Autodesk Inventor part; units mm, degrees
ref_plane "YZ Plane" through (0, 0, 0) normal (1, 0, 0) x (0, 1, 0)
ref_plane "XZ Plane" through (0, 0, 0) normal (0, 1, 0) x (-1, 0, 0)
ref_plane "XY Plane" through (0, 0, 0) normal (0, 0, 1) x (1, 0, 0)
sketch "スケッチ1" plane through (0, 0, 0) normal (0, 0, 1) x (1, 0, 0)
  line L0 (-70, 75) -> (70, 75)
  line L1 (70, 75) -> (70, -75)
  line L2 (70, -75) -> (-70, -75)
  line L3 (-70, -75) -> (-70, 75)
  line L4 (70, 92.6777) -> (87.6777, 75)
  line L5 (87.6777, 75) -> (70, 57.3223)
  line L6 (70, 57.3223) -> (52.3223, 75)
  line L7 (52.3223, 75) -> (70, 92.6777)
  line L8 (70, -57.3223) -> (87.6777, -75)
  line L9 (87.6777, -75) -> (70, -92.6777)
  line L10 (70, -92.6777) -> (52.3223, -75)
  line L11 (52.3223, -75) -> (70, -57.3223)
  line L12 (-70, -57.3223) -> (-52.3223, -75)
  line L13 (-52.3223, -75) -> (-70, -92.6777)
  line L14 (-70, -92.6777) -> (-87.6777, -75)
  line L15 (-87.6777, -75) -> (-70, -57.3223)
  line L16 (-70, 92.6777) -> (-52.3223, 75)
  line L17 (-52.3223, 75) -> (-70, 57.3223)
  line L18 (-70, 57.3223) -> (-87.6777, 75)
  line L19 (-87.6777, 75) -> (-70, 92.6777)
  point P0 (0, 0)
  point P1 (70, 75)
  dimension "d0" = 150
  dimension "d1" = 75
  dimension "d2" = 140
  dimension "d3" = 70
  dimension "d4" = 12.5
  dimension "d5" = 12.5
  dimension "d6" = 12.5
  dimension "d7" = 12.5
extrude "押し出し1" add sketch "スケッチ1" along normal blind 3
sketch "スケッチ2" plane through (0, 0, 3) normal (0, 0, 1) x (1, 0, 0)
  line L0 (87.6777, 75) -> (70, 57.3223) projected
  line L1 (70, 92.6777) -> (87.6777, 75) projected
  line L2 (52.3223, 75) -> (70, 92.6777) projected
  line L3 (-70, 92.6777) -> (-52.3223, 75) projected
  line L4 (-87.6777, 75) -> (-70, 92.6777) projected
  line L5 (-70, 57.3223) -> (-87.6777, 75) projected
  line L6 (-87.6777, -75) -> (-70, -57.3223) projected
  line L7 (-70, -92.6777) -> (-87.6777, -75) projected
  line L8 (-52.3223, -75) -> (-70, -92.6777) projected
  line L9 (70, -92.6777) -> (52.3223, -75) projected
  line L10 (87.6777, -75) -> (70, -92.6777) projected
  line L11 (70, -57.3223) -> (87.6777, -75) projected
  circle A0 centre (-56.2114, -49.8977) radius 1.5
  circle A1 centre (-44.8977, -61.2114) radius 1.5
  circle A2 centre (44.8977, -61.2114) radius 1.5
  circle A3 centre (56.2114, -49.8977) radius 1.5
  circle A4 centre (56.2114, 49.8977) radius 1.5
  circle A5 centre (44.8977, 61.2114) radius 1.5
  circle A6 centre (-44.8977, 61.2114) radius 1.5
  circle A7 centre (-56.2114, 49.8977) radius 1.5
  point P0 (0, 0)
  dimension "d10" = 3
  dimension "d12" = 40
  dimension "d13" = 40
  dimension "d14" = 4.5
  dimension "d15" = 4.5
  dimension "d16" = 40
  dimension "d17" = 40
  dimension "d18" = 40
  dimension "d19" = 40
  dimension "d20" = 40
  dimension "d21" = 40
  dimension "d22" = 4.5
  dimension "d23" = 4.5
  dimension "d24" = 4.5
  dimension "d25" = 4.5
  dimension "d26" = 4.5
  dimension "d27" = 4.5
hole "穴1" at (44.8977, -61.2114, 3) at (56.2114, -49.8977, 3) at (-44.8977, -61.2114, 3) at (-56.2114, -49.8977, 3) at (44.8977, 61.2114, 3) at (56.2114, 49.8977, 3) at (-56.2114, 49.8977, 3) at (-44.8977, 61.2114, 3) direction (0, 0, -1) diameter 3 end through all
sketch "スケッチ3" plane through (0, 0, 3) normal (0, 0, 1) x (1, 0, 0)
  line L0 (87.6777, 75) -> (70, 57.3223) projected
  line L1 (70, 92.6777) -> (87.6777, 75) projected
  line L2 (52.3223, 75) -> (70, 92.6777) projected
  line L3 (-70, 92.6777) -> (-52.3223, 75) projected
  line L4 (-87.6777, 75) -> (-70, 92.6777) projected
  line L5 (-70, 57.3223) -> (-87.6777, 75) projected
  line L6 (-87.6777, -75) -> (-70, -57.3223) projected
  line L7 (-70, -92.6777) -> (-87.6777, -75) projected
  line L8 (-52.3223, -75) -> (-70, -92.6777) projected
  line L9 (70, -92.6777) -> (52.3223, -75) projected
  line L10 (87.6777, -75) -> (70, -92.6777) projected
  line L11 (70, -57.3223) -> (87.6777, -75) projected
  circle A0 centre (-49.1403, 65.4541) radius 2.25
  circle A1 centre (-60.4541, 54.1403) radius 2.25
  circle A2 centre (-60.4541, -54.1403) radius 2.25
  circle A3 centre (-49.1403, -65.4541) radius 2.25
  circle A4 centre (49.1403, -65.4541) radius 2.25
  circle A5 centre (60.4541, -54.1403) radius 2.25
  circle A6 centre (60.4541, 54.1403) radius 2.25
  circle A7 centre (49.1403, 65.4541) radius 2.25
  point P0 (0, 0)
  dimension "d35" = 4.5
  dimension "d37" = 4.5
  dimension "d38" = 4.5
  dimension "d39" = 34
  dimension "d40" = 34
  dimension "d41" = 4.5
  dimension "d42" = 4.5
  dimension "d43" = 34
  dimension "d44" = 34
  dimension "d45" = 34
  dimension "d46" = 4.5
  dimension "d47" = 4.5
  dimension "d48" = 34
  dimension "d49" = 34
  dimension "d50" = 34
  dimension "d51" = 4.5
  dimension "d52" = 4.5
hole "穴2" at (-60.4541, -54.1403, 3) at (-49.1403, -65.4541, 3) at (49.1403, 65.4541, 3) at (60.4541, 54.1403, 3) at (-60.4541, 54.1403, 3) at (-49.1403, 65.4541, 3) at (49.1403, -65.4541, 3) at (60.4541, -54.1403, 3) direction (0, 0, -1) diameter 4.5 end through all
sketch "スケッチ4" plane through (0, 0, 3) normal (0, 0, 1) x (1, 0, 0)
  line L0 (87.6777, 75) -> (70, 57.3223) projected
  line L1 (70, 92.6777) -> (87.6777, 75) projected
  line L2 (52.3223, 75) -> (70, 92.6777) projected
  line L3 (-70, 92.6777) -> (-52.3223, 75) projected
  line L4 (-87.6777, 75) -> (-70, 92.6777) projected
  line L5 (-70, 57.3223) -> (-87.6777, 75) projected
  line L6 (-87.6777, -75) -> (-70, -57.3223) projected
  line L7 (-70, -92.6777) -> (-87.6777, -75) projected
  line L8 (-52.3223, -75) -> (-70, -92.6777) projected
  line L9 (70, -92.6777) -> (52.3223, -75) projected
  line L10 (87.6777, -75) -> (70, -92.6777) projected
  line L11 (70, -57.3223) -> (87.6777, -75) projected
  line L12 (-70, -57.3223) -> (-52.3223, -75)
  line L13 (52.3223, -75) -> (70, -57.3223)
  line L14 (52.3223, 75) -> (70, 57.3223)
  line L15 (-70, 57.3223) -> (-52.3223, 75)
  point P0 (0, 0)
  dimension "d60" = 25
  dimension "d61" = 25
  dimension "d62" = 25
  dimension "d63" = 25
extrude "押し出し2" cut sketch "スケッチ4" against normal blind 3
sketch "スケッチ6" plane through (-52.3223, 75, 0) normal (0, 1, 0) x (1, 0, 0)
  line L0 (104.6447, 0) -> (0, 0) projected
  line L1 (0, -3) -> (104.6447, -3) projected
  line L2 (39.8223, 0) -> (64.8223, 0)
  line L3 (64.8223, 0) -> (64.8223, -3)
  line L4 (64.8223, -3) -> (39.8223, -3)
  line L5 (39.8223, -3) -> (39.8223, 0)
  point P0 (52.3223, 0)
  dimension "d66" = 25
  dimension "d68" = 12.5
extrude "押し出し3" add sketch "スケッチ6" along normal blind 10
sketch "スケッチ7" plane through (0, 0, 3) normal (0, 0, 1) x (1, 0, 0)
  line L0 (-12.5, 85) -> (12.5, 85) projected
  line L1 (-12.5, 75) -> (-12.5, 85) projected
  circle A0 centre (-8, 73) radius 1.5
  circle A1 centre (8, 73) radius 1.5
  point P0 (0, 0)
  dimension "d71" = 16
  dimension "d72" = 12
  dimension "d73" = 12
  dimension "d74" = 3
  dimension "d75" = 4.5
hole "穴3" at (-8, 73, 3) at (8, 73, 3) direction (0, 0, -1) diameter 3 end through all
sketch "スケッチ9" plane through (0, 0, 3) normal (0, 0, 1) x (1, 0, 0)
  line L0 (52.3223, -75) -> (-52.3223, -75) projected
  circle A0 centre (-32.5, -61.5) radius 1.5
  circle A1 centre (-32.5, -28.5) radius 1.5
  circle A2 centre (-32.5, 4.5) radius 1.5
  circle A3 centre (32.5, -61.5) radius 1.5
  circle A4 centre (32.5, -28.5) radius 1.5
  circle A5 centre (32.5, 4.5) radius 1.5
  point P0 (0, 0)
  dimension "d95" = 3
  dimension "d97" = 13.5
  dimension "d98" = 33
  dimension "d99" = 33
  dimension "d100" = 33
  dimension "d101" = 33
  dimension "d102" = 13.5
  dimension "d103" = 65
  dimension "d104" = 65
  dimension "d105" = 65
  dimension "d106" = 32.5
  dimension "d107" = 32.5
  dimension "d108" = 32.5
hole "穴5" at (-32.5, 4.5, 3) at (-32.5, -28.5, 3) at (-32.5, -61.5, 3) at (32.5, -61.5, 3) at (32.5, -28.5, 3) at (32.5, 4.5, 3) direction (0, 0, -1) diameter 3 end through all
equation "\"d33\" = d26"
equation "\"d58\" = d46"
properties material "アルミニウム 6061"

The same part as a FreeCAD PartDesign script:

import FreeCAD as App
import Part
import Sketcher

V = App.Vector

doc = App.newDocument("Part")
body = doc.addObject("PartDesign::Body", "Body")

# Sketch on XY plane
sketch1 = doc.addObject("Sketcher::SketchObject", "Sketch")
body.addObject(sketch1)
sketch1.AttachmentSupport = (doc.XY_Plane, [""])
sketch1.MapMode = "FlatFace"
sketch1.addGeometry([
    Part.LineSegment(V(-88, 75, 0), V(-70, 57, 0)),  # 0
    Part.LineSegment(V(-70, 57, 0), V(-70, -57, 0)),  # 1
    Part.LineSegment(V(-70, -57, 0), V(-88, -75, 0)),  # 2
    Part.LineSegment(V(-88, -75, 0), V(-70, -93, 0)),  # 3
    Part.LineSegment(V(-70, -93, 0), V(-52, -75, 0)),  # 4
    Part.LineSegment(V(-52, -75, 0), V(52, -75, 0)),  # 5
    Part.LineSegment(V(52, -75, 0), V(70, -93, 0)),  # 6
    Part.LineSegment(V(70, -93, 0), V(88, -75, 0)),  # 7
    Part.LineSegment(V(88, -75, 0), V(70, -57, 0)),  # 8
    Part.LineSegment(V(70, -57, 0), V(70, 57, 0)),  # 9
    Part.LineSegment(V(70, 57, 0), V(88, 75, 0)),  # 10
    Part.LineSegment(V(88, 75, 0), V(70, 93, 0)),  # 11
    Part.LineSegment(V(70, 93, 0), V(52, 75, 0)),  # 12
    Part.LineSegment(V(52, 75, 0), V(-52, 75, 0)),  # 13
    Part.LineSegment(V(-52, 75, 0), V(-70, 93, 0)),  # 14
    Part.LineSegment(V(-70, 93, 0), V(-88, 75, 0)),  # 15
], False)
sketch1.addConstraint([
    Sketcher.Constraint("Coincident", 0, 2, 1, 1),
    Sketcher.Constraint("Coincident", 1, 2, 2, 1),
    Sketcher.Constraint("Coincident", 2, 2, 3, 1),
    Sketcher.Constraint("Coincident", 3, 2, 4, 1),
    Sketcher.Constraint("Coincident", 4, 2, 5, 1),
    Sketcher.Constraint("Coincident", 5, 2, 6, 1),
    Sketcher.Constraint("Coincident", 6, 2, 7, 1),
    Sketcher.Constraint("Coincident", 7, 2, 8, 1),
    Sketcher.Constraint("Coincident", 8, 2, 9, 1),
    Sketcher.Constraint("Coincident", 9, 2, 10, 1),
    Sketcher.Constraint("Coincident", 10, 2, 11, 1),
    Sketcher.Constraint("Coincident", 11, 2, 12, 1),
    Sketcher.Constraint("Coincident", 12, 2, 13, 1),
    Sketcher.Constraint("Coincident", 13, 2, 14, 1),
    Sketcher.Constraint("Coincident", 14, 2, 15, 1),
    Sketcher.Constraint("Coincident", 15, 2, 0, 1),
    Sketcher.Constraint("Vertical", 1),
    Sketcher.Constraint("Horizontal", 5),
    Sketcher.Constraint("Vertical", 9),
    Sketcher.Constraint("Horizontal", 13),
    Sketcher.Constraint("Symmetric", 0, 2, 8, 2, -1, 1),
    Sketcher.Constraint("Symmetric", 2, 2, 10, 2, -1, 1),
    Sketcher.Constraint("Symmetric", 3, 2, 11, 2, -1, 1),
    Sketcher.Constraint("Symmetric", 4, 2, 12, 2, -1, 1),
    Sketcher.Constraint("Symmetric", 6, 2, 14, 2, -1, 1),
    Sketcher.Constraint("Symmetric", 7, 2, 15, 2, -1, 1),
    Sketcher.Constraint("Symmetric", 3, 2, 6, 2, -2),
    Sketcher.Constraint("Symmetric", 2, 2, 7, 2, -2),
    Sketcher.Constraint("Perpendicular", 0, 2),
    Sketcher.Constraint("Perpendicular", 2, 3),
    Sketcher.Constraint("Perpendicular", 3, 4),
    Sketcher.Constraint("Perpendicular", 4, 6),
    Sketcher.Constraint("Perpendicular", 6, 7),
    Sketcher.Constraint("Perpendicular", 8, 10),
    Sketcher.Constraint("Perpendicular", 12, 14),
    Sketcher.Constraint("Horizontal", 2, 2, 4, 2),
    Sketcher.Constraint("Vertical", 1, 2, 3, 2),
    Sketcher.Constraint("DistanceX", 0, 2, -1, 1, 70.0),
    Sketcher.Constraint("DistanceY", 2, 2, -1, 1, 75.0),
    Sketcher.Constraint("Distance", 0, 25.0),
])
pad1 = doc.addObject("PartDesign::Pad", "Pad")
body.addObject(pad1)
pad1.Profile = sketch1
pad1.Length = 3

# Sketch on XY plane
sketch2 = doc.addObject("Sketcher::SketchObject", "Sketch001")
body.addObject(sketch2)
sketch2.AttachmentSupport = (doc.XY_Plane, [""])
sketch2.MapMode = "FlatFace"
sketch2.AttachmentOffset = App.Placement(V(0, 0, 3), App.Rotation())
sketch2.addGeometry([
    Part.Circle(V(44.9, -61.2, 0), V(0, 0, 1), 1.5),  # 0
    Part.Circle(V(56.2, -49.9, 0), V(0, 0, 1), 1.5),  # 1
    Part.Circle(V(-44.9, -61.2, 0), V(0, 0, 1), 1.5),  # 2
    Part.Circle(V(-56.2, -49.9, 0), V(0, 0, 1), 1.5),  # 3
    Part.Circle(V(44.9, 61.2, 0), V(0, 0, 1), 1.5),  # 4
    Part.Circle(V(56.2, 49.9, 0), V(0, 0, 1), 1.5),  # 5
    Part.Circle(V(-56.2, 49.9, 0), V(0, 0, 1), 1.5),  # 6
    Part.Circle(V(-44.9, 61.2, 0), V(0, 0, 1), 1.5),  # 7
], False)
sketch2.addConstraint([
    Sketcher.Constraint("Equal", 0, 1),
    Sketcher.Constraint("Equal", 1, 2),
    Sketcher.Constraint("Equal", 2, 3),
    Sketcher.Constraint("Equal", 3, 4),
    Sketcher.Constraint("Equal", 4, 5),
    Sketcher.Constraint("Equal", 5, 6),
    Sketcher.Constraint("Equal", 6, 7),
    Sketcher.Constraint("Symmetric", 2, 3, 4, 3, -1, 1),
    Sketcher.Constraint("Symmetric", 3, 3, 5, 3, -1, 1),
    Sketcher.Constraint("Symmetric", 1, 3, 6, 3, -1, 1),
    Sketcher.Constraint("Symmetric", 0, 3, 7, 3, -1, 1),
    Sketcher.Constraint("Symmetric", 0, 3, 2, 3, -2),
    Sketcher.Constraint("Symmetric", 1, 3, 3, 3, -2),
    Sketcher.Constraint("Diameter", 0, 3.0),
    Sketcher.Constraint("DistanceX", 2, 3, 1, 3, 101.109),
    Sketcher.Constraint("DistanceY", 1, 3, 4, 3, 111.109),
    Sketcher.Constraint("DistanceX", -1, 1, 0, 3, 44.8977),
    Sketcher.Constraint("DistanceY", 0, 3, -1, 1, 61.2114),
])
doc.recompute()
hole = doc.addObject("PartDesign::Hole", "Hole")
body.addObject(hole)
hole.Profile = sketch2
hole.ThreadType = "None"
hole.Diameter = 3
hole.DepthType = "ThroughAll"

# Sketch on XY plane
sketch3 = doc.addObject("Sketcher::SketchObject", "Sketch002")
body.addObject(sketch3)
sketch3.AttachmentSupport = (doc.XY_Plane, [""])
sketch3.MapMode = "FlatFace"
sketch3.AttachmentOffset = App.Placement(V(0, 0, 3), App.Rotation())
sketch3.addGeometry([
    Part.Circle(V(-60.5, -54.1, 0), V(0, 0, 1), 2.2),  # 0
    Part.Circle(V(-49.1, -65.5, 0), V(0, 0, 1), 2.2),  # 1
    Part.Circle(V(49.1, 65.5, 0), V(0, 0, 1), 2.2),  # 2
    Part.Circle(V(60.5, 54.1, 0), V(0, 0, 1), 2.2),  # 3
    Part.Circle(V(-60.5, 54.1, 0), V(0, 0, 1), 2.2),  # 4
    Part.Circle(V(-49.1, 65.5, 0), V(0, 0, 1), 2.2),  # 5
    Part.Circle(V(49.1, -65.5, 0), V(0, 0, 1), 2.2),  # 6
    Part.Circle(V(60.5, -54.1, 0), V(0, 0, 1), 2.2),  # 7
], False)
sketch3.addConstraint([
    Sketcher.Constraint("Equal", 0, 1),
    Sketcher.Constraint("Equal", 1, 2),
    Sketcher.Constraint("Equal", 2, 3),
    Sketcher.Constraint("Equal", 3, 4),
    Sketcher.Constraint("Equal", 4, 5),
    Sketcher.Constraint("Equal", 5, 6),
    Sketcher.Constraint("Equal", 6, 7),
    Sketcher.Constraint("Symmetric", 1, 3, 2, 3, -1, 1),
    Sketcher.Constraint("Symmetric", 0, 3, 3, 3, -1, 1),
    Sketcher.Constraint("Symmetric", 5, 3, 6, 3, -1, 1),
    Sketcher.Constraint("Symmetric", 4, 3, 7, 3, -1, 1),
    Sketcher.Constraint("Symmetric", 3, 3, 4, 3, -2),
    Sketcher.Constraint("Symmetric", 2, 3, 5, 3, -2),
    Sketcher.Constraint("Diameter", 0, 4.5),
    Sketcher.Constraint("DistanceX", 0, 3, -1, 1, 60.454),
    Sketcher.Constraint("DistanceY", 1, 3, -1, 1, 65.454),
    Sketcher.Constraint("DistanceY", 0, 3, -1, 1, 54.1403),
    Sketcher.Constraint("DistanceX", 1, 3, -1, 1, 49.1403),
])
doc.recompute()
hole2 = doc.addObject("PartDesign::Hole", "Hole001")
body.addObject(hole2)
hole2.Profile = sketch3
hole2.ThreadType = "None"
hole2.Diameter = 4.5
hole2.DepthType = "ThroughAll"

# Sketch on XY plane
sketch4 = doc.addObject("Sketcher::SketchObject", "Sketch003")
body.addObject(sketch4)
sketch4.AttachmentSupport = (doc.XY_Plane, [""])
sketch4.MapMode = "FlatFace"
sketch4.AttachmentOffset = App.Placement(V(0, 0, 3), App.Rotation())
sketch4.addGeometry([
    Part.LineSegment(V(70, 57, 0), V(88, 75, 0)),  # 0
    Part.LineSegment(V(88, 75, 0), V(70, 93, 0)),  # 1
    Part.LineSegment(V(70, 93, 0), V(52, 75, 0)),  # 2
    Part.LineSegment(V(52, 75, 0), V(70, 57, 0)),  # 3
    Part.LineSegment(V(-52, 75, 0), V(-70, 93, 0)),  # 4
    Part.LineSegment(V(-70, 93, 0), V(-88, 75, 0)),  # 5
    Part.LineSegment(V(-88, 75, 0), V(-70, 57, 0)),  # 6
    Part.LineSegment(V(-70, 57, 0), V(-52, 75, 0)),  # 7
    Part.LineSegment(V(-70, -57, 0), V(-88, -75, 0)),  # 8
    Part.LineSegment(V(-88, -75, 0), V(-70, -93, 0)),  # 9
    Part.LineSegment(V(-70, -93, 0), V(-52, -75, 0)),  # 10
    Part.LineSegment(V(-52, -75, 0), V(-70, -57, 0)),  # 11
    Part.LineSegment(V(52, -75, 0), V(70, -93, 0)),  # 12
    Part.LineSegment(V(70, -93, 0), V(88, -75, 0)),  # 13
    Part.LineSegment(V(88, -75, 0), V(70, -57, 0)),  # 14
    Part.LineSegment(V(70, -57, 0), V(52, -75, 0)),  # 15
], False)
sketch4.addConstraint([
    Sketcher.Constraint("Coincident", 0, 2, 1, 1),
    Sketcher.Constraint("Coincident", 1, 2, 2, 1),
    Sketcher.Constraint("Coincident", 2, 2, 3, 1),
    Sketcher.Constraint("Coincident", 3, 2, 0, 1),
    Sketcher.Constraint("Coincident", 4, 2, 5, 1),
    Sketcher.Constraint("Coincident", 5, 2, 6, 1),
    Sketcher.Constraint("Coincident", 6, 2, 7, 1),
    Sketcher.Constraint("Coincident", 7, 2, 4, 1),
    Sketcher.Constraint("Coincident", 8, 2, 9, 1),
    Sketcher.Constraint("Coincident", 9, 2, 10, 1),
    Sketcher.Constraint("Coincident", 10, 2, 11, 1),
    Sketcher.Constraint("Coincident", 11, 2, 8, 1),
    Sketcher.Constraint("Coincident", 12, 2, 13, 1),
    Sketcher.Constraint("Coincident", 13, 2, 14, 1),
    Sketcher.Constraint("Coincident", 14, 2, 15, 1),
    Sketcher.Constraint("Coincident", 15, 2, 12, 1),
    Sketcher.Constraint("Symmetric", 0, 2, 8, 2, -1, 1),
    Sketcher.Constraint("Symmetric", 1, 2, 9, 2, -1, 1),
    Sketcher.Constraint("Symmetric", 2, 2, 10, 2, -1, 1),
    Sketcher.Constraint("Symmetric", 3, 2, 11, 2, -1, 1),
    Sketcher.Constraint("Symmetric", 4, 2, 12, 2, -1, 1),
    Sketcher.Constraint("Symmetric", 5, 2, 13, 2, -1, 1),
    Sketcher.Constraint("Symmetric", 6, 2, 14, 2, -1, 1),
    Sketcher.Constraint("Symmetric", 7, 2, 15, 2, -1, 1),
    Sketcher.Constraint("Symmetric", 1, 2, 4, 2, -2),
    Sketcher.Constraint("Symmetric", 0, 2, 5, 2, -2),
    Sketcher.Constraint("Symmetric", 3, 2, 6, 2, -2),
    Sketcher.Constraint("Symmetric", 2, 2, 7, 2, -2),
    Sketcher.Constraint("Perpendicular", 0, 1),
    Sketcher.Constraint("Perpendicular", 1, 2),
    Sketcher.Constraint("Perpendicular", 2, 3),
    Sketcher.Constraint("Parallel", 3, 4),
    Sketcher.Constraint("Horizontal", 0, 2, 2, 2),
    Sketcher.Constraint("Distance", 0, 25.0),
    Sketcher.Constraint("DistanceY", -1, 1, 0, 2, 75.0),
    Sketcher.Constraint("DistanceX", -1, 1, 1, 2, 70.0),
])
pocket1 = doc.addObject("PartDesign::Pocket", "Pocket")
body.addObject(pocket1)
pocket1.Profile = sketch4
pocket1.Length = 3

# Sketch on XZ plane
sketch5 = doc.addObject("Sketcher::SketchObject", "Sketch004")
body.addObject(sketch5)
sketch5.AttachmentSupport = (doc.XZ_Plane, [""])
sketch5.MapMode = "FlatFace"
sketch5.AttachmentOffset = App.Placement(V(0, 0, -75), App.Rotation())
sketch5.addGeometry([
    Part.LineSegment(V(12.5, 3, 0), V(12.5, 0, 0)),
    Part.LineSegment(V(12.5, 0, 0), V(-12.5, 0, 0)),
    Part.LineSegment(V(-12.5, 0, 0), V(-12.5, 3, 0)),
    Part.LineSegment(V(-12.5, 3, 0), V(12.5, 3, 0)),
], False)
sketch5.addConstraint([
    Sketcher.Constraint("Coincident", 0, 2, 1, 1),
    Sketcher.Constraint("Coincident", 1, 2, 2, 1),
    Sketcher.Constraint("Coincident", 2, 2, 3, 1),
    Sketcher.Constraint("Coincident", 3, 2, 0, 1),
    Sketcher.Constraint("Vertical", 0),
    Sketcher.Constraint("Horizontal", 1),
    Sketcher.Constraint("Vertical", 2),
    Sketcher.Constraint("Horizontal", 3),
    Sketcher.Constraint("Symmetric", 0, 2, 1, 2, -1, 1),
    Sketcher.Constraint("DistanceX", 1, 2, 1, 1, 25.0),
    Sketcher.Constraint("DistanceY", 0, 2, 0, 1, 3.0),
])
pad2 = doc.addObject("PartDesign::Pad", "Pad001")
body.addObject(pad2)
pad2.Profile = sketch5
pad2.Length = 10
pad2.Reversed = True

# Sketch on XY plane
sketch6 = doc.addObject("Sketcher::SketchObject", "Sketch005")
body.addObject(sketch6)
sketch6.AttachmentSupport = (doc.XY_Plane, [""])
sketch6.MapMode = "FlatFace"
sketch6.AttachmentOffset = App.Placement(V(0, 0, 3), App.Rotation())
sketch6.addGeometry([
    Part.Circle(V(-8, 73, 0), V(0, 0, 1), 1.5),
    Part.Circle(V(8, 73, 0), V(0, 0, 1), 1.5),
], False)
sketch6.addConstraint([
    Sketcher.Constraint("Equal", 0, 1),
    Sketcher.Constraint("Symmetric", 0, 3, 1, 3, -2),
    Sketcher.Constraint("Diameter", 0, 3.0),
    Sketcher.Constraint("DistanceX", 0, 3, -1, 1, 8.0),
    Sketcher.Constraint("DistanceY", -1, 1, 0, 3, 73.0),
])
doc.recompute()
hole3 = doc.addObject("PartDesign::Hole", "Hole002")
body.addObject(hole3)
hole3.Profile = sketch6
hole3.ThreadType = "None"
hole3.Diameter = 3
hole3.DepthType = "ThroughAll"

# Sketch on XY plane
sketch7 = doc.addObject("Sketcher::SketchObject", "Sketch006")
body.addObject(sketch7)
sketch7.AttachmentSupport = (doc.XY_Plane, [""])
sketch7.MapMode = "FlatFace"
sketch7.AttachmentOffset = App.Placement(V(0, 0, 3), App.Rotation())
sketch7.addGeometry([
    Part.Circle(V(-32.5, 4.5, 0), V(0, 0, 1), 1.5),  # 0
    Part.Circle(V(-32.5, -28.5, 0), V(0, 0, 1), 1.5),  # 1
    Part.Circle(V(-32.5, -61.5, 0), V(0, 0, 1), 1.5),  # 2
    Part.Circle(V(32.5, -61.5, 0), V(0, 0, 1), 1.5),  # 3
    Part.Circle(V(32.5, -28.5, 0), V(0, 0, 1), 1.5),  # 4
    Part.Circle(V(32.5, 4.5, 0), V(0, 0, 1), 1.5),  # 5
], False)
sketch7.addConstraint([
    Sketcher.Constraint("Equal", 0, 1),
    Sketcher.Constraint("Equal", 1, 2),
    Sketcher.Constraint("Equal", 2, 3),
    Sketcher.Constraint("Equal", 3, 4),
    Sketcher.Constraint("Equal", 4, 5),
    Sketcher.Constraint("Symmetric", 2, 3, 3, 3, -2),
    Sketcher.Constraint("Symmetric", 1, 3, 4, 3, -2),
    Sketcher.Constraint("Symmetric", 0, 3, 5, 3, -2),
    Sketcher.Constraint("Vertical", 0, 3, 1, 3),
    Sketcher.Constraint("Vertical", 1, 3, 2, 3),
    Sketcher.Constraint("Diameter", 0, 3.0),
    Sketcher.Constraint("DistanceY", 1, 3, 0, 3, 33.0),
    Sketcher.Constraint("DistanceY", 2, 3, 1, 3, 33.0),
    Sketcher.Constraint("DistanceX", 2, 3, 3, 3, 65.0),
    Sketcher.Constraint("DistanceY", -1, 1, 0, 3, 4.5),
])
doc.recompute()
hole4 = doc.addObject("PartDesign::Hole", "Hole003")
body.addObject(hole4)
hole4.Profile = sketch7
hole4.ThreadType = "None"
hole4.Diameter = 3
hole4.DepthType = "ThroughAll"

doc.recompute()
